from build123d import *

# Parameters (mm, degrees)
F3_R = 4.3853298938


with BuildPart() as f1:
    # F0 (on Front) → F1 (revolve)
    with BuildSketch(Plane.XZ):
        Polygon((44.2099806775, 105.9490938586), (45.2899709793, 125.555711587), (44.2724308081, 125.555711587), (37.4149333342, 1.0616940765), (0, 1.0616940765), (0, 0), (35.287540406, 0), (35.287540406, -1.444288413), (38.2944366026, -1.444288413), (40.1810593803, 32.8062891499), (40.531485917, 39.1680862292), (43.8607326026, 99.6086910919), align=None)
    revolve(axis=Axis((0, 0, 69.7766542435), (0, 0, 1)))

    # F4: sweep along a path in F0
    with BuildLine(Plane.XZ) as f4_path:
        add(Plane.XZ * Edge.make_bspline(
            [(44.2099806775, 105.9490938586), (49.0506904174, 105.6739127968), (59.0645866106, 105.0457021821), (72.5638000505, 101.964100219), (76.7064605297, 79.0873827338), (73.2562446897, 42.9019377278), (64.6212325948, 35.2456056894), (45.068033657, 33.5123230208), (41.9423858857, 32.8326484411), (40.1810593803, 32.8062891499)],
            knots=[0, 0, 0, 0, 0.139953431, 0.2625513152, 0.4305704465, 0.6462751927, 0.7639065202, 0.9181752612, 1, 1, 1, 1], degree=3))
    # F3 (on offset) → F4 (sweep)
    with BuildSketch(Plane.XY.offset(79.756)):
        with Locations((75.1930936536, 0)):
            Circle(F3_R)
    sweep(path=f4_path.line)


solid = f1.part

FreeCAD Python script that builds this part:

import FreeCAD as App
import Part
import Sketcher

V = App.Vector

doc = App.newDocument("Part")
body = doc.addObject("PartDesign::Body", "Body")

# Sketch on XZ plane
sketch1 = doc.addObject("Sketcher::SketchObject", "Sketch")
body.addObject(sketch1)
sketch1.AttachmentSupport = (doc.XZ_Plane, [""])
sketch1.MapMode = "FlatFace"
sketch1.addGeometry(Part.LineSegment(V(44.209981, 105.949094, 0), V(45.289971, 125.555712, 0)), False)
sketch1.addGeometry(Part.LineSegment(V(45.289971, 125.555712, 0), V(44.272431, 125.555712, 0)), False)
sketch1.addGeometry(Part.LineSegment(V(44.272431, 125.555712, 0), V(37.414933, 1.061694, 0)), False)
sketch1.addGeometry(Part.LineSegment(V(37.414933, 1.061694, 0), V(0, 1.061694, 0)), False)
sketch1.addGeometry(Part.LineSegment(V(0, 1.061694, 0), V(0, 0, 0)), False)
sketch1.addGeometry(Part.LineSegment(V(0, 0, 0), V(35.28754, 0, 0)), False)
sketch1.addGeometry(Part.LineSegment(V(35.28754, 0, 0), V(35.28754, -1.444288, 0)), False)
sketch1.addGeometry(Part.LineSegment(V(35.28754, -1.444288, 0), V(38.294437, -1.444288, 0)), False)
sketch1.addGeometry(Part.LineSegment(V(38.294437, -1.444288, 0), V(40.181059, 32.806289, 0)), False)
sketch1.addGeometry(Part.LineSegment(V(40.181059, 32.806289, 0), V(40.531486, 39.168086, 0)), False)
sketch1.addGeometry(Part.LineSegment(V(40.531486, 39.168086, 0), V(43.860733, 99.608691, 0)), False)
sketch1.addGeometry(Part.LineSegment(V(43.860733, 99.608691, 0), V(44.209981, 105.949094, 0)), False)
sketch1.addConstraint(Sketcher.Constraint("Coincident", 0, 2, 1, 1))
sketch1.addConstraint(Sketcher.Constraint("Coincident", 1, 2, 2, 1))
sketch1.addConstraint(Sketcher.Constraint("Coincident", 2, 2, 3, 1))
sketch1.addConstraint(Sketcher.Constraint("Coincident", 3, 2, 4, 1))
sketch1.addConstraint(Sketcher.Constraint("Coincident", 4, 2, 5, 1))
sketch1.addConstraint(Sketcher.Constraint("Coincident", 5, 2, 6, 1))
sketch1.addConstraint(Sketcher.Constraint("Coincident", 6, 2, 7, 1))
sketch1.addConstraint(Sketcher.Constraint("Coincident", 7, 2, 8, 1))
sketch1.addConstraint(Sketcher.Constraint("Coincident", 8, 2, 9, 1))
sketch1.addConstraint(Sketcher.Constraint("Coincident", 9, 2, 10, 1))
sketch1.addConstraint(Sketcher.Constraint("Coincident", 10, 2, 11, 1))
sketch1.addConstraint(Sketcher.Constraint("Coincident", 11, 2, 0, 1))
sketch1.addConstraint(Sketcher.Constraint("Horizontal", 1))
sketch1.addConstraint(Sketcher.Constraint("Horizontal", 3))
sketch1.addConstraint(Sketcher.Constraint("Vertical", 4))
sketch1.addConstraint(Sketcher.Constraint("Horizontal", 5))
sketch1.addConstraint(Sketcher.Constraint("Vertical", 6))
sketch1.addConstraint(Sketcher.Constraint("Horizontal", 7))
sketch1.addConstraint(Sketcher.Constraint("Coincident", 4, 2, -1, 1))
sketch1.addConstraint(Sketcher.Constraint("DistanceY", 6, 2, 1, 2, 127.0))
sketch1.addConstraint(Sketcher.Constraint("Distance", 8, 34.302499))
sketch1.addConstraint(Sketcher.Constraint("DistanceX", 1, 2, 1, 1, 1.01754))
sketch1.addConstraint(Sketcher.Constraint("DistanceX", 5, 1, 5, 2, 35.28754))
sketch1.addConstraint(Sketcher.Constraint("DistanceY", 6, 2, 6, 1, 1.444288))
sketch1.addConstraint(Sketcher.Constraint("DistanceX", 10, 2, 1, 2, 0.411698))
sketch1.addConstraint(Sketcher.Constraint("DistanceY", 8, 2, 10, 2, 66.802402))
sketch1.addConstraint(Sketcher.Constraint("DistanceX", 2, 2, 10, 2, 6.445799))
sketch1.addConstraint(Sketcher.Constraint("Distance", 0, 19.63634))
sketch1.addConstraint(Sketcher.Constraint("Distance", 2, 124.68274))
sketch1.addConstraint(Sketcher.Constraint("Distance", 9, 6.371441))
sketch1.addConstraint(Sketcher.Constraint("DistanceX", 3, 2, 3, 1, 37.414933))
sketch1.addConstraint(Sketcher.Constraint("DistanceX", 7, 1, 7, 2, 3.006896))
sketch1.addConstraint(Sketcher.Constraint("DistanceX", -1, 1, 8, 2, 40.181059))
sketch1.addConstraint(Sketcher.Constraint("DistanceX", -1, 1, 11, 2, 44.209981))
sketch1.addConstraint(Sketcher.Constraint("DistanceX", 7, 2, 9, 2, 2.237049))
revolution = doc.addObject("PartDesign::Revolution", "Revolution")
body.addObject(revolution)
revolution.Profile = sketch1
revolution.ReferenceAxis = (sketch1, ["V_Axis"])
revolution.Angle = 360

# Sketch on XY plane
sketch2 = doc.addObject("Sketcher::SketchObject", "Sketch001")
body.addObject(sketch2)
sketch2.AttachmentSupport = (doc.XY_Plane, [""])
sketch2.MapMode = "FlatFace"
sketch2.AttachmentOffset = App.Placement(V(0, 0, 79.756), App.Rotation())
sketch2.addGeometry(Part.Circle(V(75.2, 0, 0), V(0, 0, 1), 4.4), False)
sketch2.addConstraint(Sketcher.Constraint("PointOnObject", 0, 3, -1))
sketch2.addConstraint(Sketcher.Constraint("Diameter", 0, 8.77066))
sketch2.addConstraint(Sketcher.Constraint("DistanceX", -1, 1, 0, 3, 75.193094))

# Sketch on XZ plane
sketch3 = doc.addObject("Sketcher::SketchObject", "Sketch002")
body.addObject(sketch3)
sketch3.AttachmentSupport = (doc.XZ_Plane, [""])
sketch3.MapMode = "FlatFace"
sketch3.addGeometry(Part.BSplineCurve([V(44.209981, 105.949094, 0), V(49.05069, 105.673913, 0), V(59.064587, 105.045702, 0), V(72.5638, 101.9641, 0), V(76.706461, 79.087383, 0), V(73.256245, 42.901938, 0), V(64.621233, 35.245606, 0), V(45.068034, 33.512323, 0), V(41.942386, 32.832648, 0), V(40.181059, 32.806289, 0)], [4, 1, 1, 1, 1, 1, 1, 4], [0, 0.139953431, 0.262551315, 0.430570446, 0.646275193, 0.76390652, 0.918175261, 1], False, 3, [1, 1, 1, 1, 1, 1, 1, 1, 1, 1], False), False)
sketch3.addConstraint(Sketcher.Constraint("Block", 0))
doc.recompute()

additivepipe = doc.addObject("PartDesign::AdditivePipe", "AdditivePipe")
body.addObject(additivepipe)
additivepipe.Profile = sketch2
additivepipe.Spine = (sketch3, ["Edge1"])

doc.recompute()
